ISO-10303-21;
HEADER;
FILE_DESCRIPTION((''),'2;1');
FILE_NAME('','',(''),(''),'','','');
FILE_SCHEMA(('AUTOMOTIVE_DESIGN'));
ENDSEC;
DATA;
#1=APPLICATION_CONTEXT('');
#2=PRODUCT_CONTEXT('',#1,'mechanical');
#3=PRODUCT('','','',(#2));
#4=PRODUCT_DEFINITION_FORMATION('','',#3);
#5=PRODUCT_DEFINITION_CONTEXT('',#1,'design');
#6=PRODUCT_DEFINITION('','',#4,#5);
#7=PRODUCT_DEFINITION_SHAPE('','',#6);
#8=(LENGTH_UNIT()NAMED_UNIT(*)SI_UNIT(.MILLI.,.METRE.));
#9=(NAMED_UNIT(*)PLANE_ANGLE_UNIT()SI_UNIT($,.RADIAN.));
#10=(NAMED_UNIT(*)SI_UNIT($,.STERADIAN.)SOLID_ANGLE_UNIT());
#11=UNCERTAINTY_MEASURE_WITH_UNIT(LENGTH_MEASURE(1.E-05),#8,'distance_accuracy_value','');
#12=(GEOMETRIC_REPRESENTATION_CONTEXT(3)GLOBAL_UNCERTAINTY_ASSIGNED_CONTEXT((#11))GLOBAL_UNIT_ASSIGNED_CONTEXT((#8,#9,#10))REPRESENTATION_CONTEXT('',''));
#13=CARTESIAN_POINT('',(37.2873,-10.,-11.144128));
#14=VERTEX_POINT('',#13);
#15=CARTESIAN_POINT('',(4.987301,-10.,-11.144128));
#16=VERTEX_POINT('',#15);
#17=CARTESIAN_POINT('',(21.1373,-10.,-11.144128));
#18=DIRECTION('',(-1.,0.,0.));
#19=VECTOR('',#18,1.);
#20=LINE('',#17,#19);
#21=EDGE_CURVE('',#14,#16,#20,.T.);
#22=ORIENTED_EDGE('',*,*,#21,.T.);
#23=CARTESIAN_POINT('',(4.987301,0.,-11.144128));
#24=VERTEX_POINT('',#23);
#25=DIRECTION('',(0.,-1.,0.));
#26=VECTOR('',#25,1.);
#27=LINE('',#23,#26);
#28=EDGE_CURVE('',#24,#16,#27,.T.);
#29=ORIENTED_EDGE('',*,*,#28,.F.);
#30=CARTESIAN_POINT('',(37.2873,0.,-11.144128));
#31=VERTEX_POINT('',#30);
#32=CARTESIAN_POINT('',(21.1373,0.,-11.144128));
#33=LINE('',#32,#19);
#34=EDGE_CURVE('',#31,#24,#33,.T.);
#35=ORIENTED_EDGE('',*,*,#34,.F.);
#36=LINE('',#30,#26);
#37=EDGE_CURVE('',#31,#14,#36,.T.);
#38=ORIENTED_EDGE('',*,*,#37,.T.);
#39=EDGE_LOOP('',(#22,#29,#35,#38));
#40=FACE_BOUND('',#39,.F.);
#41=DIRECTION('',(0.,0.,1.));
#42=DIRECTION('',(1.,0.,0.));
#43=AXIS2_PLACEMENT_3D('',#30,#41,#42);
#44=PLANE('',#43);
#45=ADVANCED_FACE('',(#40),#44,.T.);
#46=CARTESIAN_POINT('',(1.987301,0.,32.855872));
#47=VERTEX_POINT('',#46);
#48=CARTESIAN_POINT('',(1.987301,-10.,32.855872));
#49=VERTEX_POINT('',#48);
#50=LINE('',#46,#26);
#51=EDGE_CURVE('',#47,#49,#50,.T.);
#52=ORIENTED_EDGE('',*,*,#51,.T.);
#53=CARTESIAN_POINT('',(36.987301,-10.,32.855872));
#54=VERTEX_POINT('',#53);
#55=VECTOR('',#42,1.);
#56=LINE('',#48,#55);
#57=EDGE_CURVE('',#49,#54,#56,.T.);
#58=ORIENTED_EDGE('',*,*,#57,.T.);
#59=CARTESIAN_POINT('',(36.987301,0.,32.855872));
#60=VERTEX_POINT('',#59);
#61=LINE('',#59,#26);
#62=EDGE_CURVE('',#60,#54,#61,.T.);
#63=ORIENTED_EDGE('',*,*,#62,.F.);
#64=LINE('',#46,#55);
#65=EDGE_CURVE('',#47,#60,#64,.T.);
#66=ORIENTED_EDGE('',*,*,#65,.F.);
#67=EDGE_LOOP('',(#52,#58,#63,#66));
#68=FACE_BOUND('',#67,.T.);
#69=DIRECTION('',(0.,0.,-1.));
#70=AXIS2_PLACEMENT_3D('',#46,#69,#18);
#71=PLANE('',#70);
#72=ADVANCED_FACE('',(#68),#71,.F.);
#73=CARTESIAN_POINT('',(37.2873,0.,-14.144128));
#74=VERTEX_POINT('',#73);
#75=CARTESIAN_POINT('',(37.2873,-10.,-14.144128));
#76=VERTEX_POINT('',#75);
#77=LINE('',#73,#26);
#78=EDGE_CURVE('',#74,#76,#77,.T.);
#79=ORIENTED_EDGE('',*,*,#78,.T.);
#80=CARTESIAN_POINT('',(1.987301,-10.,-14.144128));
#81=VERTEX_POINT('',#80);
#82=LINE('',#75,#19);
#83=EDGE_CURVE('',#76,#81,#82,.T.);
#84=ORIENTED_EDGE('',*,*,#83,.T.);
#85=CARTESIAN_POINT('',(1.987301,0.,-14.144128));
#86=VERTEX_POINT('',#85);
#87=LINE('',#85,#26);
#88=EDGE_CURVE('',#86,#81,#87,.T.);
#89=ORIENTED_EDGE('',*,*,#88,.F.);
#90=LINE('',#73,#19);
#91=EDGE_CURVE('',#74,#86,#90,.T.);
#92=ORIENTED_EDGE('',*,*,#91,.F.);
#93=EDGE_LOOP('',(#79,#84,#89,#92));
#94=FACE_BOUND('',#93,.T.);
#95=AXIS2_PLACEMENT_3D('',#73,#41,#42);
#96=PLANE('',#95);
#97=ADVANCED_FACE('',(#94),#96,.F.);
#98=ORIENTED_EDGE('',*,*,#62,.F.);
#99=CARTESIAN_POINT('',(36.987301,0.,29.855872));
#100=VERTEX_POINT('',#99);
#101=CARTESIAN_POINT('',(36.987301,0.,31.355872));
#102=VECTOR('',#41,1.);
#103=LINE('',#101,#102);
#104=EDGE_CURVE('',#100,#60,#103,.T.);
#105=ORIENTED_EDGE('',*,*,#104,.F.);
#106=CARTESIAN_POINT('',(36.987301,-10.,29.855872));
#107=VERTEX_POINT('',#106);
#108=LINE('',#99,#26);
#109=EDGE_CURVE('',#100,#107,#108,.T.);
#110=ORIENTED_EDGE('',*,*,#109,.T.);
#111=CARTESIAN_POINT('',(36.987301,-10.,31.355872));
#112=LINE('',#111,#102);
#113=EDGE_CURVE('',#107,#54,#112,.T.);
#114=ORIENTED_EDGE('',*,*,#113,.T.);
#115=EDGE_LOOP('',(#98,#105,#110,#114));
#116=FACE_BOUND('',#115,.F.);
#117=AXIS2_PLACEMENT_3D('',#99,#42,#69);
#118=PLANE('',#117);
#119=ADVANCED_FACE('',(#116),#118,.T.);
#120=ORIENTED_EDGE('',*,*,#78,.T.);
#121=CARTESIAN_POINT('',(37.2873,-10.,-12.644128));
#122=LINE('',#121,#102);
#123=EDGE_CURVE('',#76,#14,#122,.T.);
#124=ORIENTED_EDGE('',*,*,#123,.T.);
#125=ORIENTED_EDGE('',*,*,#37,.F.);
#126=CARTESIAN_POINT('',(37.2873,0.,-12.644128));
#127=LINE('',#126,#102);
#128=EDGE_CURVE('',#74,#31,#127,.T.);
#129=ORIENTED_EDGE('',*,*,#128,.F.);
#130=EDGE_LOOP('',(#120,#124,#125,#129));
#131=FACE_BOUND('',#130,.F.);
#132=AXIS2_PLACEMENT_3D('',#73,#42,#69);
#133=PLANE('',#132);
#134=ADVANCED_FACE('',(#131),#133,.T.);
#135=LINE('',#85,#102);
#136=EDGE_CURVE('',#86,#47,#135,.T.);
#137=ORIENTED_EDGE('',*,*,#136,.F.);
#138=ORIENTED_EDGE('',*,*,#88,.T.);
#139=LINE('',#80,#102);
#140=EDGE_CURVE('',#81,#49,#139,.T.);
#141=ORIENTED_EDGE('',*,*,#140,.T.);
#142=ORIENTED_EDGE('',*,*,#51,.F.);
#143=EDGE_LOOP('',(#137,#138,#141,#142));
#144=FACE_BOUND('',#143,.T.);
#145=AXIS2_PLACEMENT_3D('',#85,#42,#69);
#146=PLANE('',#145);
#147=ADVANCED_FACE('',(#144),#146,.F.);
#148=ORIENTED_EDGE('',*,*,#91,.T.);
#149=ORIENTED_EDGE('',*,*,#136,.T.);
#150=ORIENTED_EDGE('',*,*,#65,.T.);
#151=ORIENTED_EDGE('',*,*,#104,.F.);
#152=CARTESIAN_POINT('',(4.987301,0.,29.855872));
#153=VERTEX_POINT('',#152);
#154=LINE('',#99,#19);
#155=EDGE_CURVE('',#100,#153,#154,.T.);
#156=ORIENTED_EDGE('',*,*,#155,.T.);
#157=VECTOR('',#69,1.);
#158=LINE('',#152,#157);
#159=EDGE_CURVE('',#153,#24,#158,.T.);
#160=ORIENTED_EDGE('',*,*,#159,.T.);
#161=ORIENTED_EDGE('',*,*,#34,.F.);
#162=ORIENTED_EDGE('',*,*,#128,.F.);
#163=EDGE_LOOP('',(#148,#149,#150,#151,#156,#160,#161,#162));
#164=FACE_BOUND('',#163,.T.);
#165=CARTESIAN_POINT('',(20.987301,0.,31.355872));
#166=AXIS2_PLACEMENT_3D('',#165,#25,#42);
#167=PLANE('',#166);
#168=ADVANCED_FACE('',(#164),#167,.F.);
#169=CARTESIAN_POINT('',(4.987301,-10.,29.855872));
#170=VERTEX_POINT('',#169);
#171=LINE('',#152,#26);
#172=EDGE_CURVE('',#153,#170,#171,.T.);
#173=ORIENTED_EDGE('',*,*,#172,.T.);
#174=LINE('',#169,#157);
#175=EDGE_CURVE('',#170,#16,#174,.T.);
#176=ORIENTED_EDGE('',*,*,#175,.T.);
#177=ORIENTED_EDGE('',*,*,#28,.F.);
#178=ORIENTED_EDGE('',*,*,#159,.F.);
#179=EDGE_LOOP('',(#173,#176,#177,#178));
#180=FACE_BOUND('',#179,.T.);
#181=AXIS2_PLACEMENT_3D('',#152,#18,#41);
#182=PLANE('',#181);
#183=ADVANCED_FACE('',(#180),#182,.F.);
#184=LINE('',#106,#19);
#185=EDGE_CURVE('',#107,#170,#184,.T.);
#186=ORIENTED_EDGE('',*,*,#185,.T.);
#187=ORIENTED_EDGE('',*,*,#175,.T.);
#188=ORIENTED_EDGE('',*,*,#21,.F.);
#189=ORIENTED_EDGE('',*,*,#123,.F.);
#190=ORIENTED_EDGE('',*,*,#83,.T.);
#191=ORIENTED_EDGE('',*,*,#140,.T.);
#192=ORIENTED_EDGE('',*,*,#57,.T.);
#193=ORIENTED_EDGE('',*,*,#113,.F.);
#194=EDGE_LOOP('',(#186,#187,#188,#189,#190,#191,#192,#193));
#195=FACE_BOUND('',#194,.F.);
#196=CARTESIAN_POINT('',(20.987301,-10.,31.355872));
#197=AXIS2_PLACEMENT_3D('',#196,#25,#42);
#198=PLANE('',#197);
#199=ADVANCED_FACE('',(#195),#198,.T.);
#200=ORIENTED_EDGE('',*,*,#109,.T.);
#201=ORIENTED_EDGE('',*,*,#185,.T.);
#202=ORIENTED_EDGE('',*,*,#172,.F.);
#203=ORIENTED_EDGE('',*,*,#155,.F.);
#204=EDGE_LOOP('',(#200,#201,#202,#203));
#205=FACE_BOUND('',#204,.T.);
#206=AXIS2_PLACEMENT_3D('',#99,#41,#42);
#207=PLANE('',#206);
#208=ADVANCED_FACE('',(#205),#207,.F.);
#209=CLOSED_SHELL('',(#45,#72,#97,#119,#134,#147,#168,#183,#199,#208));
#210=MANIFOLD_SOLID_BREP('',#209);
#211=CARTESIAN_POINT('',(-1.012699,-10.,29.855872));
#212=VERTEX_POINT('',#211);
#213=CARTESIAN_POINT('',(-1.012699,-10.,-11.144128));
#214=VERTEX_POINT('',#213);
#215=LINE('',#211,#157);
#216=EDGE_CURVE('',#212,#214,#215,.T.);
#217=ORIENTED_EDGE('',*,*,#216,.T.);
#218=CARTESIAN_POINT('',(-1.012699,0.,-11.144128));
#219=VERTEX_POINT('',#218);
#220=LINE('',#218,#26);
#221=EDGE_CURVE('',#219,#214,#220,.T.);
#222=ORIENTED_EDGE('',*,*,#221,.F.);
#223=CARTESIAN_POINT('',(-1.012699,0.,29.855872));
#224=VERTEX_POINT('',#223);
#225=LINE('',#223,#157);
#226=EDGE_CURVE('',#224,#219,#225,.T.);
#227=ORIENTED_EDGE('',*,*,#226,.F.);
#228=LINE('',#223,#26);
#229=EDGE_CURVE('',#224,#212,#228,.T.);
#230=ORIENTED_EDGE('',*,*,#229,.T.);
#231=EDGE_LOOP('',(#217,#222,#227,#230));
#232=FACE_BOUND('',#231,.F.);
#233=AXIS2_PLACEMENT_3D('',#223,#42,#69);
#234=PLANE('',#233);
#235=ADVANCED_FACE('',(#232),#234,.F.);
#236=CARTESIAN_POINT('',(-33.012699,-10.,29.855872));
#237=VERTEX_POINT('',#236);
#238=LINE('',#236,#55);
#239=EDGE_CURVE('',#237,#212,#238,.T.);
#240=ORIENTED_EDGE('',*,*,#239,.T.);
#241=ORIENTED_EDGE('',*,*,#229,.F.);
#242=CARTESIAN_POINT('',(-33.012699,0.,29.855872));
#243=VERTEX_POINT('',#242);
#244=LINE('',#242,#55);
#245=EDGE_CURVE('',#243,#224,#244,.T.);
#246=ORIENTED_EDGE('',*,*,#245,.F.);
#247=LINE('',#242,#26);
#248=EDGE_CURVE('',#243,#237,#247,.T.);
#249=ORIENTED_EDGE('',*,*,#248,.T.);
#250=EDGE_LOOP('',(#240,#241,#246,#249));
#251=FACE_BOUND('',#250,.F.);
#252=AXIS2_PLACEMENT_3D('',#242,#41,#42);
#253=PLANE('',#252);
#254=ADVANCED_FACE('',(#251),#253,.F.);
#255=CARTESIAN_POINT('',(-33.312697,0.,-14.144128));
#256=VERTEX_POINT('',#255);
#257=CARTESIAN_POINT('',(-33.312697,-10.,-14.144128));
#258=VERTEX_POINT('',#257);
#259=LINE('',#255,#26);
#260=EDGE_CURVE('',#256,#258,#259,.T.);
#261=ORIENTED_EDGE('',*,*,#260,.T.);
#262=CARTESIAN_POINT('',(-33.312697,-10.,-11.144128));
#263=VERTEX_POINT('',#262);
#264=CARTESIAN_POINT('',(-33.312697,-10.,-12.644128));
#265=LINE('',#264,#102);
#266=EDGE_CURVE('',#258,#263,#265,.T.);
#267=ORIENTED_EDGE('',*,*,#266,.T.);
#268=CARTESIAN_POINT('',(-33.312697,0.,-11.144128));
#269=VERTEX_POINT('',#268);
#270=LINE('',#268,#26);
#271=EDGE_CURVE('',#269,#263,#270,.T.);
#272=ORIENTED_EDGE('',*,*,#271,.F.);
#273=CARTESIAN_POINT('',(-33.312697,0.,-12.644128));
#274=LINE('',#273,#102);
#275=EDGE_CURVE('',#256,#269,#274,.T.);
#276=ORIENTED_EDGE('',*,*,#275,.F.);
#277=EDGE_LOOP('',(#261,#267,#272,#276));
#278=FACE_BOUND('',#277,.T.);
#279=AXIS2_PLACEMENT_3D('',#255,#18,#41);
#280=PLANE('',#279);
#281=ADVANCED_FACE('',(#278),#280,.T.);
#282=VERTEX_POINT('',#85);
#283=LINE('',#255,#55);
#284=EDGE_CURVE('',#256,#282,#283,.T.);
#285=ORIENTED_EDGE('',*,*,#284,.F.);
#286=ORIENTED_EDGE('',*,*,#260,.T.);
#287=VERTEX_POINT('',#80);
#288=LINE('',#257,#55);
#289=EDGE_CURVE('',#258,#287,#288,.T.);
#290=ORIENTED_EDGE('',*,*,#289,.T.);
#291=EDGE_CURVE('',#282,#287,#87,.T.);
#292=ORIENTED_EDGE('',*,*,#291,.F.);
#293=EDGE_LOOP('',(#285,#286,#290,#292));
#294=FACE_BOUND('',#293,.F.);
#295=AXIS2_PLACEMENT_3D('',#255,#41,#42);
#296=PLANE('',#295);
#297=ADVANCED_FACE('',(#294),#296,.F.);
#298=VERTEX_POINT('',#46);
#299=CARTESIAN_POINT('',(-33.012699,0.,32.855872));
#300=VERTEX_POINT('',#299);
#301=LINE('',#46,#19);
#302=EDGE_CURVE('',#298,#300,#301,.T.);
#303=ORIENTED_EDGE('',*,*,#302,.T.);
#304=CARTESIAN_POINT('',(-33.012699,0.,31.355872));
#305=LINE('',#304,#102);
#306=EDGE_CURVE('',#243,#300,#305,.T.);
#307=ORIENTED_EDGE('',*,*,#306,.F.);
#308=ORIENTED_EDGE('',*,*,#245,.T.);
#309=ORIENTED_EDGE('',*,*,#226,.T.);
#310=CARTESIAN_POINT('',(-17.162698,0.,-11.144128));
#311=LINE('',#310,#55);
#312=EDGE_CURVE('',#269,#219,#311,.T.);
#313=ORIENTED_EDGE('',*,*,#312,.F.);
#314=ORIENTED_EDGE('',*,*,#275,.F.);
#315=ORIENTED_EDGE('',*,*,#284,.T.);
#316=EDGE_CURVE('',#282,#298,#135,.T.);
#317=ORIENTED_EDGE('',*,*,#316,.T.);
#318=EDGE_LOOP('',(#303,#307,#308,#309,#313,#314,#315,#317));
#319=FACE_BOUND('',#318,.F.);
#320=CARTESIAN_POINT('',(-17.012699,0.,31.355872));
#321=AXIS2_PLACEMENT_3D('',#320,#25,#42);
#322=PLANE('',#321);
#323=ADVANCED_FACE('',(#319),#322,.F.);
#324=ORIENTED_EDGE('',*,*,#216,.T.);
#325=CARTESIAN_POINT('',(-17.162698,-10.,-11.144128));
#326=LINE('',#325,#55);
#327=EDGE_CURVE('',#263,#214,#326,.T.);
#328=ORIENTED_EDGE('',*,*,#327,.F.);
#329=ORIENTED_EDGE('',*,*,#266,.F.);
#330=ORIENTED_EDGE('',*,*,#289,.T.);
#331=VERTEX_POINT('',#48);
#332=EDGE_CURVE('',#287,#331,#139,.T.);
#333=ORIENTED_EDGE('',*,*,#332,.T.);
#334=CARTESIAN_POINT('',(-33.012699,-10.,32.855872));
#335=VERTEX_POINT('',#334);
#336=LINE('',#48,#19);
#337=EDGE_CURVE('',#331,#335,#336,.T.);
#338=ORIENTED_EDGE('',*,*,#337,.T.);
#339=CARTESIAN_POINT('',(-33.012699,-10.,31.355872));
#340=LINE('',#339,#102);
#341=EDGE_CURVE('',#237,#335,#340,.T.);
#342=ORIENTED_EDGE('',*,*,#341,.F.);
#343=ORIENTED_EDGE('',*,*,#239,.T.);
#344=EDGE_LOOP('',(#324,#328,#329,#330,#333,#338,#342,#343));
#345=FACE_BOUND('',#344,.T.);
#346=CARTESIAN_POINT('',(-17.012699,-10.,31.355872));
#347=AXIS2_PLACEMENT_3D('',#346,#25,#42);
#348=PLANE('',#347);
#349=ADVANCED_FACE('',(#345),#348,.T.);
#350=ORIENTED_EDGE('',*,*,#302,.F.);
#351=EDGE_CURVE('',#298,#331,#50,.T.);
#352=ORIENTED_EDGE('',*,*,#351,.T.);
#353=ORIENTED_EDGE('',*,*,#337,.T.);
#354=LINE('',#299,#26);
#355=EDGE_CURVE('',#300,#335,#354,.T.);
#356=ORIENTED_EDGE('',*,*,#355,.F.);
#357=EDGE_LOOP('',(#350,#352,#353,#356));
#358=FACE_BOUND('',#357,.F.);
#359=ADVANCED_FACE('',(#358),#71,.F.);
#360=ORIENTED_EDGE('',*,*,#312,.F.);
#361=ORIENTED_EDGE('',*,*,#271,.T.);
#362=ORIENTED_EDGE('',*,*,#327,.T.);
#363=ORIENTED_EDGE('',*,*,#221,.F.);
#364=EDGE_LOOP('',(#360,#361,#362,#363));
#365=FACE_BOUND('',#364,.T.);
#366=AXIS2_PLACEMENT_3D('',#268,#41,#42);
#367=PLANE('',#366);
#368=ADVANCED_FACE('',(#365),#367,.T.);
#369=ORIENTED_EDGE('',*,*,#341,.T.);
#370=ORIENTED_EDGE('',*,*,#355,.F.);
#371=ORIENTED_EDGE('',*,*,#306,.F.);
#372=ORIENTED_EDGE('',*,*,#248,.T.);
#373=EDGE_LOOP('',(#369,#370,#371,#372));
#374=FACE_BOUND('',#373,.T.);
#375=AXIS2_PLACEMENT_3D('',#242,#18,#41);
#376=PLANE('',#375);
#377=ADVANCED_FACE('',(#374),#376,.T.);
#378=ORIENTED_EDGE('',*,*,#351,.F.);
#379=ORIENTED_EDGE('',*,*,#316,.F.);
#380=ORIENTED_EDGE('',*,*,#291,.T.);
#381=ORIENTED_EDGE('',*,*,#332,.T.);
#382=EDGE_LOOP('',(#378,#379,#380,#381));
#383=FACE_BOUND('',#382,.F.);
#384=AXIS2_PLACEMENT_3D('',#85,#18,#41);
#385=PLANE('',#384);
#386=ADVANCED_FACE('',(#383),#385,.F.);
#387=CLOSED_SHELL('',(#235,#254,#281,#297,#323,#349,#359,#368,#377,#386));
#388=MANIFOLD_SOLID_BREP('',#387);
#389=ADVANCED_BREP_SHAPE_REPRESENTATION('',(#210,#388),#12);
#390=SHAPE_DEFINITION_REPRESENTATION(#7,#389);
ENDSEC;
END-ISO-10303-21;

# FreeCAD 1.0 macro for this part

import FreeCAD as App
import Part
import Sketcher
from FreeCAD import Vector
Q = App.Units.Quantity

doc = App.newDocument("Part")
body = doc.addObject("PartDesign::Body", "Body")

# Sketch on XZ plane
sketch1 = body.newObject("Sketcher::SketchObject", "Sketch")
sketch1.AttachmentSupport = (doc.getObject("XZ_Plane"), [""])
sketch1.MapMode = "FlatFace"
sketch1.addGeometry([
    Part.LineSegment(Vector(-33, 32.9, 0), Vector(-33, 29.9, 0)),  # 0
    Part.LineSegment(Vector(-33, 29.9, 0), Vector(-1, 29.9, 0)),  # 1
    Part.LineSegment(Vector(-1, 29.9, 0), Vector(-1, -11.1, 0)),  # 2
    Part.LineSegment(Vector(-1, -11.1, 0), Vector(-33.3, -11.1, 0)),  # 3
    Part.LineSegment(Vector(-33.3, -11.1, 0), Vector(-33.3, -14.1, 0)),  # 4
    Part.LineSegment(Vector(-33.3, -14.1, 0), Vector(2, -14.1, 0)),  # 5
    Part.LineSegment(Vector(2, -14.1, 0), Vector(2, 32.9, 0)),  # 6
    Part.LineSegment(Vector(2, 32.9, 0), Vector(-33, 32.9, 0)),  # 7
], False)
sketch1.addConstraint([
    Sketcher.Constraint("Coincident", 0, 2, 1, 1),
    Sketcher.Constraint("Coincident", 1, 2, 2, 1),
    Sketcher.Constraint("Coincident", 2, 2, 3, 1),
    Sketcher.Constraint("Coincident", 3, 2, 4, 1),
    Sketcher.Constraint("Coincident", 4, 2, 5, 1),
    Sketcher.Constraint("Coincident", 5, 2, 6, 1),
    Sketcher.Constraint("Coincident", 6, 2, 7, 1),
    Sketcher.Constraint("Coincident", 7, 2, 0, 1),
    Sketcher.Constraint("Vertical", 0),
    Sketcher.Constraint("Horizontal", 1),
    Sketcher.Constraint("Vertical", 2),
    Sketcher.Constraint("Horizontal", 3),
    Sketcher.Constraint("Vertical", 4),
    Sketcher.Constraint("Horizontal", 5),
    Sketcher.Constraint("Vertical", 6),
    Sketcher.Constraint("Horizontal", 7),
    Sketcher.Constraint("Equal", 0, 4),
    Sketcher.Constraint("DistanceX", 1, 1, 1, 2, Q("32 mm")),
    Sketcher.Constraint("DistanceX", 7, 2, 7, 1, Q("35 mm")),
    Sketcher.Constraint("DistanceY", 0, 2, 0, 1, Q("3 mm")),
    Sketcher.Constraint("DistanceY", 2, 2, 2, 1, Q("41 mm")),
    Sketcher.Constraint("DistanceX", 3, 2, 3, 1, Q("32.299999 mm")),
    Sketcher.Constraint("DistanceX", 0, 2, -1, 1, Q("33.012699 mm")),
    Sketcher.Constraint("DistanceY", -1, 1, 6, 2, Q("32.855872 mm")),
])
pad1 = body.newObject("PartDesign::Pad", "Pad")
pad1.Profile = sketch1
pad1.Length = 10
body2 = doc.addObject("PartDesign::Body", "Body001")
doc.recompute()

mirroring = doc.addObject("Part::Mirroring", "Mirroring")
mirroring.Source = body
mirroring.Base = Vector(1.987301, -5, 9.355872)
mirroring.Normal = Vector(1, 0, 0)
body2.BaseFeature = mirroring
doc.recompute()
mirroring.Visibility = False

doc.recompute()
